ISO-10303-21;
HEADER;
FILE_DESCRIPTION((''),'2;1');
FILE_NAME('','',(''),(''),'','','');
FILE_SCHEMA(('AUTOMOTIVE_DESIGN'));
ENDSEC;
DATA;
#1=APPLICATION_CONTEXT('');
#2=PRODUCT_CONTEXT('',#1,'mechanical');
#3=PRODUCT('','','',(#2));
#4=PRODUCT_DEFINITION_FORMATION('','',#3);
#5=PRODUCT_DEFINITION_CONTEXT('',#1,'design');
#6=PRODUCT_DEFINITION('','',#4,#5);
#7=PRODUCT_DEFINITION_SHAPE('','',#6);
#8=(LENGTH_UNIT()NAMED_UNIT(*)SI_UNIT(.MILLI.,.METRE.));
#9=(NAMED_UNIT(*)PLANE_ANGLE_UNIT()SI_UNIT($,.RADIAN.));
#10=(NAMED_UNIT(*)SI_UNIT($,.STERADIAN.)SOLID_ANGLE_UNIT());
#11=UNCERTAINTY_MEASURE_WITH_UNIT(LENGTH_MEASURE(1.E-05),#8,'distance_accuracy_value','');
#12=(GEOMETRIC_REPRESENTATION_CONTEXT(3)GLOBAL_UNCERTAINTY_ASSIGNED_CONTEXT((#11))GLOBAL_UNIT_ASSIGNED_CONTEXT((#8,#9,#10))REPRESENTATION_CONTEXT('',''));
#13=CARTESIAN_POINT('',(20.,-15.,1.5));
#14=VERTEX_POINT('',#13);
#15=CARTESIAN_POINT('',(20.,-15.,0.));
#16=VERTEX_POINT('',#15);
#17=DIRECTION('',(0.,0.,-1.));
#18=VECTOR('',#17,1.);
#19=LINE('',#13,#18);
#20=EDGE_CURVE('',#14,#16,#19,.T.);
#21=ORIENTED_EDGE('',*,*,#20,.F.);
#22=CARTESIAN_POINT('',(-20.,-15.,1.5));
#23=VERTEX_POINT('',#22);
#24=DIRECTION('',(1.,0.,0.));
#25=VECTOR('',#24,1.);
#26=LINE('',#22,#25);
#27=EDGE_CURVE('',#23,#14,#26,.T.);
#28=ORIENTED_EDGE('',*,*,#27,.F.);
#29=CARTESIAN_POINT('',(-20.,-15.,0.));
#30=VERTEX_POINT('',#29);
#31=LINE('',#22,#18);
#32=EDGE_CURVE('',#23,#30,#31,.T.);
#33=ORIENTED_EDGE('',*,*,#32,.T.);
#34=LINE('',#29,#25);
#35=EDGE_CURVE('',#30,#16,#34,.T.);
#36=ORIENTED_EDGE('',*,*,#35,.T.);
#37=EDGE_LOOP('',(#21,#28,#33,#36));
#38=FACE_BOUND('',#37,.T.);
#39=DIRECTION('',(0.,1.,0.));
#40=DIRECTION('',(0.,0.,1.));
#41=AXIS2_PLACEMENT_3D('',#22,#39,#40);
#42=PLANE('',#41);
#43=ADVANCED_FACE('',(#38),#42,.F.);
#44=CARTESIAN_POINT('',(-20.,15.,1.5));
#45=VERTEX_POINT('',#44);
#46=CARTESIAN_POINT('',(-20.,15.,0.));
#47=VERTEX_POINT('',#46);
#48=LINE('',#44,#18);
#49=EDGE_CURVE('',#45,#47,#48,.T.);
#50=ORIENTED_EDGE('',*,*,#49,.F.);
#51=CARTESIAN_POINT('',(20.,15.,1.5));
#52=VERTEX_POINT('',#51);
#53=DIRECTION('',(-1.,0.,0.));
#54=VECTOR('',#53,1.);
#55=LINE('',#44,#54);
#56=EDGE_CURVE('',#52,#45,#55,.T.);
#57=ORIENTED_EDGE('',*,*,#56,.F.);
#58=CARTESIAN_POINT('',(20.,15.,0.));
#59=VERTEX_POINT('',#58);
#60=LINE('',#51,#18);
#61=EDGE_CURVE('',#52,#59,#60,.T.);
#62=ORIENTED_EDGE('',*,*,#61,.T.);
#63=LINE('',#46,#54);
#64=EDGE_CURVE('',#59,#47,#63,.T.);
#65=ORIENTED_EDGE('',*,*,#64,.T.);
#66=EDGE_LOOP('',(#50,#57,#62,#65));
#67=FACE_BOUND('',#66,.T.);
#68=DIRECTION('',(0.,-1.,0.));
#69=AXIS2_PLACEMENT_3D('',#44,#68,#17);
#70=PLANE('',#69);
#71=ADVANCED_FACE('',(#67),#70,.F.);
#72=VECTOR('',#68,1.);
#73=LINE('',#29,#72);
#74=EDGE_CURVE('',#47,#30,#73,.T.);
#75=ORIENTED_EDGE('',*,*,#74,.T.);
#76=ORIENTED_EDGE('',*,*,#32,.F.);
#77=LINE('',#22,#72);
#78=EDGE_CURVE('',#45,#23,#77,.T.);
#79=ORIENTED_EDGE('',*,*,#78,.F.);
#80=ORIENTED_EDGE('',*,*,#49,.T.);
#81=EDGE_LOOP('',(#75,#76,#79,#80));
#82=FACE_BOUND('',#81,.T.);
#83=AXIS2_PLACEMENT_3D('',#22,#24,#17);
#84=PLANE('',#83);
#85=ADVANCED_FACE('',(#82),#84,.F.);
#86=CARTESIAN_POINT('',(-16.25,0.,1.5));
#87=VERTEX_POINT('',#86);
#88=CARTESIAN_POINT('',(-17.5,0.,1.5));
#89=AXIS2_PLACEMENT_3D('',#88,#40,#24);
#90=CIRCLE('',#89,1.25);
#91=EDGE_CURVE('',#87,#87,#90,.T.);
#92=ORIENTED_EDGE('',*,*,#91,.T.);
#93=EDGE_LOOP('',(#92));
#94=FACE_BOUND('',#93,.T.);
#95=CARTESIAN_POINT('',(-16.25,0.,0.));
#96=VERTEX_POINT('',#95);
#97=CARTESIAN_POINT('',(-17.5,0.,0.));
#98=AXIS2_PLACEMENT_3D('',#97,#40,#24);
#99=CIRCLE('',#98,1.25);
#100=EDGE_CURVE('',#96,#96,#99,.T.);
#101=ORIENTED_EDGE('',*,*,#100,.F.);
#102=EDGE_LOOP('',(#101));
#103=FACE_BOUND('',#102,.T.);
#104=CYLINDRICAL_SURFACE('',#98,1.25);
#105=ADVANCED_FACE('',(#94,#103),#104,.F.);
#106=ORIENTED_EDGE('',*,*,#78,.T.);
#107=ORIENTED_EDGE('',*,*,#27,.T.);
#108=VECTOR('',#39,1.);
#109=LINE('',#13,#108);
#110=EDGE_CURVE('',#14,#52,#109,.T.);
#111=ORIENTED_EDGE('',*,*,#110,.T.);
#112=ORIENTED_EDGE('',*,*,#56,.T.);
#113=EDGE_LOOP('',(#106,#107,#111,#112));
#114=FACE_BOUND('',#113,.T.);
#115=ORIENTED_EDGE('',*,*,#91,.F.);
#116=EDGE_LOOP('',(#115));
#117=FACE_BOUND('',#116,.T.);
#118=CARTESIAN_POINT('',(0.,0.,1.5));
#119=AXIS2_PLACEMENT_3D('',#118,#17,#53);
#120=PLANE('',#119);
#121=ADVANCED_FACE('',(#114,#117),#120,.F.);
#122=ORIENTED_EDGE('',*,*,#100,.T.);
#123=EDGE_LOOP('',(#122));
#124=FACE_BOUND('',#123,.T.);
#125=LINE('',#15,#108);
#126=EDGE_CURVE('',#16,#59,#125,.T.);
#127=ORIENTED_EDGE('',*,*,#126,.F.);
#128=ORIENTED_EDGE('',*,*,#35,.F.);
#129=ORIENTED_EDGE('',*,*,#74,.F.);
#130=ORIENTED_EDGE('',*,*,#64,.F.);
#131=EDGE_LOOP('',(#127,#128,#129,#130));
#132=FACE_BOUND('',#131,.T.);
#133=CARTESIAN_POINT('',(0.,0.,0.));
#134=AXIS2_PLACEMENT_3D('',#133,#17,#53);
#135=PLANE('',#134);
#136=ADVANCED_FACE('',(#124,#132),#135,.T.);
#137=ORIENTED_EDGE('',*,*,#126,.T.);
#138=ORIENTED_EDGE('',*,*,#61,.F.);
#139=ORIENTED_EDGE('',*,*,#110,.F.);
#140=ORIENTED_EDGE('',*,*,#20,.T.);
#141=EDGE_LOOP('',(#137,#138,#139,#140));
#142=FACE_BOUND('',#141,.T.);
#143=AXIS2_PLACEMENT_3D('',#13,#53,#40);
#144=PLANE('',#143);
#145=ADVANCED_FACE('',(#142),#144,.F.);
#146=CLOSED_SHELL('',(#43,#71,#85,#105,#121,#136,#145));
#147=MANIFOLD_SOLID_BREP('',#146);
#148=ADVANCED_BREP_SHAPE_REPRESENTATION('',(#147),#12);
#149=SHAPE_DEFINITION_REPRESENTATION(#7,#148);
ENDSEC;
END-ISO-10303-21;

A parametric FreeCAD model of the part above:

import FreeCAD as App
import Part
import Sketcher
from FreeCAD import Vector
Q = App.Units.Quantity


def add_polygon(sketch, points):
    """Adds a closed chain of lines whose ends are joined by coincident constraints."""
    first, n = sketch.GeometryCount, len(points)
    for a, b in zip(points, points[1:] + points[:1]):
        sketch.addGeometry(Part.LineSegment(App.Vector(*a, 0), App.Vector(*b, 0)), False)
    for i in range(n):
        sketch.addConstraint(Sketcher.Constraint("Coincident", first + i, 2, first + (i + 1) % n, 1))

doc = App.newDocument("Part")
body = doc.addObject("PartDesign::Body", "Body")

sketch1 = body.newObject("Sketcher::SketchObject", "Sketch")
sketch1.AttachmentSupport = (doc.getObject("XY_Plane"), [""])
sketch1.MapMode = "FlatFace"
add_polygon(sketch1, [(-20, 15), (-20, -15), (20, -15), (20, 15)])
sketch1.addConstraint([
    Sketcher.Constraint("Vertical", 0),
    Sketcher.Constraint("Horizontal", 1),
    Sketcher.Constraint("Vertical", 2),
    Sketcher.Constraint("Horizontal", 3),
    Sketcher.Constraint("Symmetric", 0, 2, 2, 2, -1, 1),
    Sketcher.Constraint("DistanceX", 1, 1, 1, 2, Q("40 mm")),
    Sketcher.Constraint("DistanceY", 0, 2, 0, 1, Q("30 mm")),
])
pad1 = body.newObject("PartDesign::Pad", "Pad")
pad1.Profile = sketch1
pad1.Length = 1.5

sketch2 = body.newObject("Sketcher::SketchObject", "Sketch001")
sketch2.AttachmentSupport = (doc.getObject("XY_Plane"), [""])
sketch2.MapMode = "FlatFace"
sketch2.AttachmentOffset = App.Placement(Vector(0, 0, 1.5), App.Rotation())
sketch2.addGeometry(Part.Circle(Vector(-17.5, 0, 0), Vector(0, 0, 1), 1.2), False)
sketch2.addConstraint([
    Sketcher.Constraint("PointOnObject", 0, 3, -1),
    Sketcher.Constraint("Diameter", 0, Q("2.5 mm")),
    Sketcher.Constraint("DistanceX", 0, 3, -1, 1, Q("17.5 mm")),
])
pocket1 = body.newObject("PartDesign::Pocket", "Pocket")
pocket1.Profile = sketch2
pocket1.Type = "ThroughAll"

doc.recompute()
